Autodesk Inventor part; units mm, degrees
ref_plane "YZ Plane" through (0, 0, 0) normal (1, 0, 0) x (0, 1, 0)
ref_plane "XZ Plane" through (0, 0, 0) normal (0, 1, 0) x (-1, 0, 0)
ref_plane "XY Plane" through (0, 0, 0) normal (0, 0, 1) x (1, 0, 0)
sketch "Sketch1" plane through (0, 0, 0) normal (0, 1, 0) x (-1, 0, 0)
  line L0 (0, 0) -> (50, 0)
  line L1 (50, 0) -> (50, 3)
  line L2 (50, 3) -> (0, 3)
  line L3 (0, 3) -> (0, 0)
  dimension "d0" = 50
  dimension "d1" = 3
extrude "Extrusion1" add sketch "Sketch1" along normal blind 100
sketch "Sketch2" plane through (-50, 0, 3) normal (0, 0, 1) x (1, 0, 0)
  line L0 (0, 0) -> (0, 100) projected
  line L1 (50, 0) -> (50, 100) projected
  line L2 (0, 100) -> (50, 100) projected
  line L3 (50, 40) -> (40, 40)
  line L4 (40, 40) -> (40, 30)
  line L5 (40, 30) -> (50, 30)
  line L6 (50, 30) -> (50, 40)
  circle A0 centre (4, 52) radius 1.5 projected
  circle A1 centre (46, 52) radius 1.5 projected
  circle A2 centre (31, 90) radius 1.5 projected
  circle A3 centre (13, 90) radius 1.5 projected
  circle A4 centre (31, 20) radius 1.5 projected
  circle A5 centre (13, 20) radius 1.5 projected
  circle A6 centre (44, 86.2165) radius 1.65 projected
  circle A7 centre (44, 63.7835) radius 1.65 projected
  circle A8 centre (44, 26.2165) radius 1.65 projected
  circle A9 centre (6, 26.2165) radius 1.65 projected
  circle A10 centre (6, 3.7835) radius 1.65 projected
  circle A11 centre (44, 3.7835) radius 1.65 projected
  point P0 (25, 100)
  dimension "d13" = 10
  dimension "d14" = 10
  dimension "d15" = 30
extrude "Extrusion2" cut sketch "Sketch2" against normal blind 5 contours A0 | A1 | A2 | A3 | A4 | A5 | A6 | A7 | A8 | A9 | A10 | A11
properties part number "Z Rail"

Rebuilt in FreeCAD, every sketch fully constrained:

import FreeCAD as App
import Part
import Sketcher
from FreeCAD import Vector
Q = App.Units.Quantity

doc = App.newDocument("Part")
body = doc.addObject("PartDesign::Body", "Body")

sketch1 = body.newObject("Sketcher::SketchObject", "Sketch")
sketch1.AttachmentSupport = (doc.getObject("XZ_Plane"), [""])
sketch1.MapMode = "FlatFace"
sketch1.addGeometry([
    Part.LineSegment(Vector(0, 3, 0), Vector(0, 0, 0)),
    Part.LineSegment(Vector(0, 0, 0), Vector(-50, 0, 0)),
    Part.LineSegment(Vector(-50, 0, 0), Vector(-50, 3, 0)),
    Part.LineSegment(Vector(-50, 3, 0), Vector(0, 3, 0)),
], False)
sketch1.addConstraint([
    Sketcher.Constraint("Coincident", 0, 2, 1, 1),
    Sketcher.Constraint("Coincident", 1, 2, 2, 1),
    Sketcher.Constraint("Coincident", 2, 2, 3, 1),
    Sketcher.Constraint("Coincident", 3, 2, 0, 1),
    Sketcher.Constraint("Vertical", 0),
    Sketcher.Constraint("Horizontal", 1),
    Sketcher.Constraint("Vertical", 2),
    Sketcher.Constraint("Horizontal", 3),
    Sketcher.Constraint("Coincident", 0, 2, -1, 1),
    Sketcher.Constraint("DistanceX", 1, 2, 1, 1, Q("50 mm")),
    Sketcher.Constraint("DistanceY", 0, 2, 0, 1, Q("3 mm")),
])
pad1 = body.newObject("PartDesign::Pad", "Pad")
pad1.Profile = sketch1
pad1.Length = 100
pad1.Reversed = True

sketch2 = body.newObject("Sketcher::SketchObject", "Sketch001")
sketch2.AttachmentSupport = (doc.getObject("XY_Plane"), [""])
sketch2.MapMode = "FlatFace"
sketch2.AttachmentOffset = App.Placement(Vector(0, 0, 3), App.Rotation())
sketch2.addGeometry([
    Part.Circle(Vector(-46, 52, 0), Vector(0, 0, 1), 1.5),
    Part.Circle(Vector(-4, 52, 0), Vector(0, 0, 1), 1.5),
    Part.Circle(Vector(-19, 90, 0), Vector(0, 0, 1), 1.5),
    Part.Circle(Vector(-37, 90, 0), Vector(0, 0, 1), 1.5),
    Part.Circle(Vector(-19, 20, 0), Vector(0, 0, 1), 1.5),
    Part.Circle(Vector(-37, 20, 0), Vector(0, 0, 1), 1.5),
    Part.Circle(Vector(-6, 86.2, 0), Vector(0, 0, 1), 1.6),
    Part.Circle(Vector(-6, 63.8, 0), Vector(0, 0, 1), 1.6),
    Part.Circle(Vector(-6, 26.2, 0), Vector(0, 0, 1), 1.6),
    Part.Circle(Vector(-44, 26.2, 0), Vector(0, 0, 1), 1.6),
    Part.Circle(Vector(-44, 3.8, 0), Vector(0, 0, 1), 1.6),
    Part.Circle(Vector(-6, 3.8, 0), Vector(0, 0, 1), 1.6),
], False)
sketch2.addConstraint([
    Sketcher.Constraint("Equal", 0, 1),
    Sketcher.Constraint("Equal", 1, 2),
    Sketcher.Constraint("Equal", 2, 3),
    Sketcher.Constraint("Equal", 3, 4),
    Sketcher.Constraint("Equal", 4, 5),
    Sketcher.Constraint("Equal", 6, 7),
    Sketcher.Constraint("Equal", 7, 8),
    Sketcher.Constraint("Equal", 8, 9),
    Sketcher.Constraint("Equal", 9, 10),
    Sketcher.Constraint("Equal", 10, 11),
    Sketcher.Constraint("Horizontal", 0, 3, 1, 3),
    Sketcher.Constraint("Horizontal", 2, 3, 3, 3),
    Sketcher.Constraint("Horizontal", 4, 3, 5, 3),
    Sketcher.Constraint("Horizontal", 8, 3, 9, 3),
    Sketcher.Constraint("Horizontal", 10, 3, 11, 3),
    Sketcher.Constraint("Vertical", 2, 3, 4, 3),
    Sketcher.Constraint("Vertical", 3, 3, 5, 3),
    Sketcher.Constraint("Vertical", 6, 3, 7, 3),
    Sketcher.Constraint("Vertical", 7, 3, 8, 3),
    Sketcher.Constraint("Vertical", 9, 3, 10, 3),
    Sketcher.Constraint("Vertical", 8, 3, 11, 3),
    Sketcher.Constraint("Diameter", 0, Q("3 mm")),
    Sketcher.Constraint("Diameter", 6, Q("3.3 mm")),
    Sketcher.Constraint("DistanceX", 0, 3, -1, 1, Q("46 mm")),
    Sketcher.Constraint("DistanceY", -1, 1, 0, 3, Q("52 mm")),
    Sketcher.Constraint("DistanceX", 1, 3, -1, 1, Q("4 mm")),
    Sketcher.Constraint("DistanceX", 2, 3, -1, 1, Q("19 mm")),
    Sketcher.Constraint("DistanceY", -1, 1, 2, 3, Q("90 mm")),
    Sketcher.Constraint("DistanceX", 3, 3, -1, 1, Q("37 mm")),
    Sketcher.Constraint("DistanceY", -1, 1, 4, 3, Q("20 mm")),
    Sketcher.Constraint("DistanceX", 6, 3, -1, 1, Q("6 mm")),
    Sketcher.Constraint("DistanceX", 9, 3, -1, 1, Q("44 mm")),
    Sketcher.Constraint("DistanceY", 7, 3, 6, 3, Q("22.433 mm")),
    Sketcher.Constraint("DistanceY", 8, 3, 7, 3, Q("37.567 mm")),
    Sketcher.Constraint("DistanceY", 10, 3, 9, 3, Q("22.433 mm")),
    Sketcher.Constraint("DistanceY", -1, 1, 6, 3, Q("86.2165 mm")),
])
pocket1 = body.newObject("PartDesign::Pocket", "Pocket")
pocket1.Profile = sketch2
pocket1.Length = 5

doc.recompute()
